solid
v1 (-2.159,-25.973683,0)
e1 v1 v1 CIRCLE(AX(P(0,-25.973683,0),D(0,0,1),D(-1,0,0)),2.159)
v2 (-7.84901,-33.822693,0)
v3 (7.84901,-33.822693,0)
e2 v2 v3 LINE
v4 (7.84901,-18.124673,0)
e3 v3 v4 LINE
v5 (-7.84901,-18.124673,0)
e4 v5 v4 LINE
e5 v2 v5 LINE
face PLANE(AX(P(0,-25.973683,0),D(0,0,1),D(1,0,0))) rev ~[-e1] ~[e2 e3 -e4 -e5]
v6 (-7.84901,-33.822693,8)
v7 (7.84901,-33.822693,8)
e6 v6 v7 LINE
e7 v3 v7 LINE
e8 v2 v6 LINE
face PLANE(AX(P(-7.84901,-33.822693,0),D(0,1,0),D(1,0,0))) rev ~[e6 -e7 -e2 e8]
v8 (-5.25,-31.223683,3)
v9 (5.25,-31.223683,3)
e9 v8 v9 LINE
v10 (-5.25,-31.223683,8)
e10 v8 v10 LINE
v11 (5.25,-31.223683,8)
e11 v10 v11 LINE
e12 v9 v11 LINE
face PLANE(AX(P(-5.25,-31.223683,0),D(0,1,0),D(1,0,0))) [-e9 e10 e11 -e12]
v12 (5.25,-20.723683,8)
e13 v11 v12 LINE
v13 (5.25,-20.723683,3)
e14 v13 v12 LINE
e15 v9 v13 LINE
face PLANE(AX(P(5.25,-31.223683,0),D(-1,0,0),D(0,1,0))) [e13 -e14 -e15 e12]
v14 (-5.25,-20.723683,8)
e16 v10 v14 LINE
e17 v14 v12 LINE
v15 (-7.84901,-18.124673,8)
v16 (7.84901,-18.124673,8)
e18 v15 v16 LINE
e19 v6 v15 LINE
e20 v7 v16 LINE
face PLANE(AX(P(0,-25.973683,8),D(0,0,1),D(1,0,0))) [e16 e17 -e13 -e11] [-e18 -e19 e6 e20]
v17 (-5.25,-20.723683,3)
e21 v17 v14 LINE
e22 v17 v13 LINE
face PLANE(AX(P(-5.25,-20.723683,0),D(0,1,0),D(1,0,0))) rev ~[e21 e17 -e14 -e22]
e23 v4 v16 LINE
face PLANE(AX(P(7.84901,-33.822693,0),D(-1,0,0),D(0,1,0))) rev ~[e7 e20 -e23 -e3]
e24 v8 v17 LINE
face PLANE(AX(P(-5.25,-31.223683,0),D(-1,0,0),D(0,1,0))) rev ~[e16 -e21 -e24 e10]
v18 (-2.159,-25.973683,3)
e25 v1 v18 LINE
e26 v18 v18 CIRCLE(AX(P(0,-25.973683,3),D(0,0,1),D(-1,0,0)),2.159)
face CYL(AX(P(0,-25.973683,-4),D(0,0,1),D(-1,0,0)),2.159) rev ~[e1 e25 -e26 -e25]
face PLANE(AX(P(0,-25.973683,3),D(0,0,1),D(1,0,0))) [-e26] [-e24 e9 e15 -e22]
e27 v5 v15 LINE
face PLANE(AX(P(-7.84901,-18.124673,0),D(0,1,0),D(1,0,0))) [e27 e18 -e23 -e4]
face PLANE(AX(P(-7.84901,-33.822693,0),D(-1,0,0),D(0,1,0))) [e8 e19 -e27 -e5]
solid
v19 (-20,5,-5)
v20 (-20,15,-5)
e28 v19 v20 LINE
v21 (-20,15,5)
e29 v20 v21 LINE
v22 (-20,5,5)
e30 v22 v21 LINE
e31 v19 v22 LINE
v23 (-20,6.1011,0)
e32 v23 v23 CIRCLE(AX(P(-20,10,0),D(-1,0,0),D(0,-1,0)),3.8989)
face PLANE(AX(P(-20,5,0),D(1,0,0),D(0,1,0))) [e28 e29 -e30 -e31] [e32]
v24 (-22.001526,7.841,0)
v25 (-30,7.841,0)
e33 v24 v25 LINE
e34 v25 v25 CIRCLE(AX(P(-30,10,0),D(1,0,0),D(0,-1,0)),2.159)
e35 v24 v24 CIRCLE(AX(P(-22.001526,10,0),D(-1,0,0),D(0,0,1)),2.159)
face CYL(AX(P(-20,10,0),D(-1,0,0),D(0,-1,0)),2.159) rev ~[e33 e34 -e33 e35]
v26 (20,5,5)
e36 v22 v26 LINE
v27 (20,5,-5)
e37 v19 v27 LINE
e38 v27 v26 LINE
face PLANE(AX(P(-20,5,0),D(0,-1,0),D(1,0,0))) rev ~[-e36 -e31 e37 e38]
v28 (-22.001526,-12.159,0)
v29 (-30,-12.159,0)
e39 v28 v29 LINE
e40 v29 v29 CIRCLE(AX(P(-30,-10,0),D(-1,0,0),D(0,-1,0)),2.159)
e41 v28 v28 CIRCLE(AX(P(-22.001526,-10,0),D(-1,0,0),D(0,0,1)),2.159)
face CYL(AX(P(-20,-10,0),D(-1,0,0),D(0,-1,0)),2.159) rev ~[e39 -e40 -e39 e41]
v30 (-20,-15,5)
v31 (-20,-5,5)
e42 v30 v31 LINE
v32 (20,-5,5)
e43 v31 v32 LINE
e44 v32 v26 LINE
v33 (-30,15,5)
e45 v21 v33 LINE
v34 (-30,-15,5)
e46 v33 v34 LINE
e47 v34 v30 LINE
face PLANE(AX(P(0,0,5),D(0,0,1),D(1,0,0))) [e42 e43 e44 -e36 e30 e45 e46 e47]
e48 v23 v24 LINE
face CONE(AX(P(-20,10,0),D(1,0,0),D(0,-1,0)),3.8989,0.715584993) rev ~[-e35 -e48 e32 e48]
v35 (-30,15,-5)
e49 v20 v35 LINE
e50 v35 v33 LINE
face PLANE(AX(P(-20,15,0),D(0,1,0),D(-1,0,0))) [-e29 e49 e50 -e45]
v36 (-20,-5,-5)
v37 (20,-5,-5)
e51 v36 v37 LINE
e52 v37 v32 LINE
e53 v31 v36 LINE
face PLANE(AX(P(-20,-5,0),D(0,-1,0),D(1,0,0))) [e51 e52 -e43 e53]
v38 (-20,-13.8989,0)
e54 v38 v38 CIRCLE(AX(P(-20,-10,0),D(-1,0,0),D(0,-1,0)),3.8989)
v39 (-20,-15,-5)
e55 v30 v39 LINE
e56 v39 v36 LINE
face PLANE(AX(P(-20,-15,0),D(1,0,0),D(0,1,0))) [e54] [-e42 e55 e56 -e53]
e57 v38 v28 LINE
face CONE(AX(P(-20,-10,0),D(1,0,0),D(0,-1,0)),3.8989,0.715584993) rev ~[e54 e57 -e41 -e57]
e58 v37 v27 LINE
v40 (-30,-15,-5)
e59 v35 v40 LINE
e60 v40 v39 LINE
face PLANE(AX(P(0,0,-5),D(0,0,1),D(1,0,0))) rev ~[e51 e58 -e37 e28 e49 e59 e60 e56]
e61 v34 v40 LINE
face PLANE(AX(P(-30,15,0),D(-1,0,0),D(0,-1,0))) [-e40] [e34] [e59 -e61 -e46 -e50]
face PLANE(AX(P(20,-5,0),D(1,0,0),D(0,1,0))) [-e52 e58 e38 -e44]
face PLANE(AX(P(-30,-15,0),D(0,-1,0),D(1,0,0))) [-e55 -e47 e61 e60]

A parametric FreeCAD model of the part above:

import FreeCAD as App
import Part
import Sketcher
from FreeCAD import Vector

doc = App.newDocument("Part")
params = doc.addObject("Spreadsheet::Sheet", "Params")
for row, (alias, value) in enumerate([
    ("sketch1_width", "40 mm"),
    ("sketch1_width2", "10 mm"),
    ("pad1_length", "10 mm"),
    ("hole_diameter", "4.318 mm"),
    ("hole_depth", "10 mm"),
    ("hole_csink_diameter", "7.7978 mm"),
    ("hole2_diameter", "4.318 mm"),
    ("hole2_depth", "10 mm"),
    ("hole2_csink_diameter", "7.7978 mm"),
    ("sketch4_width", "10.5 mm"),
    ("pad2_length", "3 mm"),
    ("hole3_diameter", "4.318 mm"),
    ("hole3_depth", "4 mm"),
    ("sketch6_width", "10.5 mm"),
    ("pad3_length", "8 mm"),
], start=1):
    params.set(f"A{row}", alias)
    params.set(f"B{row}", "=" + value)
    params.setAlias(f"B{row}", alias)

body = doc.addObject("PartDesign::Body", "Body")

# Sketch on XY plane
sketch1 = body.newObject("Sketcher::SketchObject", "Sketch")
sketch1.AttachmentSupport = (doc.getObject("XY_Plane"), [""])
sketch1.MapMode = "FlatFace"
sketch1.addGeometry([
    Part.LineSegment(Vector(-20, -5, 0), Vector(20, -5, 0)),  # 0
    Part.LineSegment(Vector(20, -5, 0), Vector(20, 5, 0)),  # 1
    Part.LineSegment(Vector(20, 5, 0), Vector(-20, 5, 0)),  # 2
    Part.LineSegment(Vector(-20, 5, 0), Vector(-20, 15, 0)),  # 3
    Part.LineSegment(Vector(-20, 15, 0), Vector(-30, 15, 0)),  # 4
    Part.LineSegment(Vector(-30, 15, 0), Vector(-30, -15, 0)),  # 5
    Part.LineSegment(Vector(-30, -15, 0), Vector(-20, -15, 0)),  # 6
    Part.LineSegment(Vector(-20, -15, 0), Vector(-20, -5, 0)),  # 7
], False)
sketch1.addConstraint([
    Sketcher.Constraint("Coincident", 0, 2, 1, 1),
    Sketcher.Constraint("Coincident", 1, 2, 2, 1),
    Sketcher.Constraint("Coincident", 2, 2, 3, 1),
    Sketcher.Constraint("Coincident", 3, 2, 4, 1),
    Sketcher.Constraint("Coincident", 4, 2, 5, 1),
    Sketcher.Constraint("Coincident", 5, 2, 6, 1),
    Sketcher.Constraint("Coincident", 6, 2, 7, 1),
    Sketcher.Constraint("Coincident", 7, 2, 0, 1),
    Sketcher.Constraint("Horizontal", 0),
    Sketcher.Constraint("Vertical", 1),
    Sketcher.Constraint("Horizontal", 2),
    Sketcher.Constraint("Vertical", 3),
    Sketcher.Constraint("Horizontal", 4),
    Sketcher.Constraint("Vertical", 5),
    Sketcher.Constraint("Horizontal", 6),
    Sketcher.Constraint("Vertical", 7),
    Sketcher.Constraint("Symmetric", 0, 2, 2, 2, -1, 1),
    Sketcher.Constraint("Symmetric", 3, 2, 6, 2, -1),
    Sketcher.Constraint("Equal", 6, 1),
    Sketcher.Constraint("Equal", 1, 3),
    Sketcher.Constraint("DistanceX", 0, 1, 0, 2, 40.0),
    Sketcher.Constraint("DistanceX", 4, 2, 4, 1, 10.0),
])
sketch1.setExpression("Constraints[20]", "Params.sketch1_width")
sketch1.setExpression("Constraints[21]", "Params.sketch1_width2")
pad1 = body.newObject("PartDesign::Pad", "Pad")
pad1.Profile = sketch1
pad1.setExpression("Length", "Params.pad1_length")
pad1.Midplane = True

# Sketch on YZ plane
sketch2 = body.newObject("Sketcher::SketchObject", "Sketch001")
sketch2.AttachmentSupport = (doc.getObject("YZ_Plane"), [""])
sketch2.MapMode = "FlatFace"
sketch2.AttachmentOffset = App.Placement(Vector(0, 0, -20), App.Rotation())
sketch2.addGeometry(Part.Circle(Vector(10, 0, 0), Vector(0, 0, 1), 2.2), False)
sketch2.addConstraint([
    Sketcher.Constraint("PointOnObject", 0, 3, -1),
    Sketcher.Constraint("Diameter", 0, 4.318),
    Sketcher.Constraint("DistanceX", -1, 1, 0, 3, 10.0),
])
doc.recompute()
hole = body.newObject("PartDesign::Hole", "Hole")
hole.Profile = sketch2
hole.ThreadType = "None"
hole.setExpression("Diameter", "Params.hole_diameter")
hole.DepthType = "Dimension"
hole.setExpression("Depth", "Params.hole_depth")
hole.DrillPoint = "Angled"
hole.DrillPointAngle = 118
hole.HoleCutType = "Countersink"
hole.setExpression("HoleCutDiameter", "Params.hole_csink_diameter")
hole.HoleCutCountersinkAngle = 82

# Sketch on YZ plane
sketch3 = body.newObject("Sketcher::SketchObject", "Sketch002")
sketch3.AttachmentSupport = (doc.getObject("YZ_Plane"), [""])
sketch3.MapMode = "FlatFace"
sketch3.AttachmentOffset = App.Placement(Vector(0, 0, -20), App.Rotation())
sketch3.addGeometry(Part.Circle(Vector(-10, 0, 0), Vector(0, 0, 1), 2.2), False)
sketch3.addConstraint([
    Sketcher.Constraint("PointOnObject", 0, 3, -1),
    Sketcher.Constraint("Diameter", 0, 4.318),
    Sketcher.Constraint("DistanceX", 0, 3, -1, 1, 10.0),
])
doc.recompute()
hole2 = body.newObject("PartDesign::Hole", "Hole001")
hole2.Profile = sketch3
hole2.ThreadType = "None"
hole2.setExpression("Diameter", "Params.hole2_diameter")
hole2.DepthType = "Dimension"
hole2.setExpression("Depth", "Params.hole2_depth")
hole2.DrillPoint = "Angled"
hole2.DrillPointAngle = 118
hole2.HoleCutType = "Countersink"
hole2.setExpression("HoleCutDiameter", "Params.hole2_csink_diameter")
hole2.HoleCutCountersinkAngle = 82
body2 = doc.addObject("PartDesign::Body", "Body001")

# Sketch on XY plane
sketch4 = body2.newObject("Sketcher::SketchObject", "Sketch003")
sketch4.AttachmentSupport = (doc.getObject("XY_Plane001"), [""])
sketch4.MapMode = "FlatFace"
sketch4.addGeometry([
    Part.LineSegment(Vector(-5, -21, 0), Vector(-5, -31, 0)),
    Part.LineSegment(Vector(-5, -31, 0), Vector(5, -31, 0)),
    Part.LineSegment(Vector(5, -31, 0), Vector(5, -21, 0)),
    Part.LineSegment(Vector(5, -21, 0), Vector(-5, -21, 0)),
], False)
sketch4.addConstraint([
    Sketcher.Constraint("Coincident", 0, 2, 1, 1),
    Sketcher.Constraint("Coincident", 1, 2, 2, 1),
    Sketcher.Constraint("Coincident", 2, 2, 3, 1),
    Sketcher.Constraint("Coincident", 3, 2, 0, 1),
    Sketcher.Constraint("Vertical", 0),
    Sketcher.Constraint("Horizontal", 1),
    Sketcher.Constraint("Vertical", 2),
    Sketcher.Constraint("Horizontal", 3),
    Sketcher.Constraint("Equal", 3, 0),
    Sketcher.Constraint("DistanceX", 1, 1, 1, 2, 10.5),
    Sketcher.Constraint("DistanceX", 0, 2, -1, 1, 5.25),
    Sketcher.Constraint("DistanceY", 0, 2, -1, 1, 31.223683),
])
sketch4.setExpression("Constraints[9]", "Params.sketch4_width")
pad2 = body2.newObject("PartDesign::Pad", "Pad001")
pad2.Profile = sketch4
pad2.setExpression("Length", "Params.pad2_length")

# Sketch on XY plane
sketch5 = body2.newObject("Sketcher::SketchObject", "Sketch004")
sketch5.AttachmentSupport = (doc.getObject("XY_Plane001"), [""])
sketch5.MapMode = "FlatFace"
sketch5.addGeometry(Part.Circle(Vector(0, -26, 0), Vector(0, 0, 1), 2.2), False)
sketch5.addConstraint([
    Sketcher.Constraint("PointOnObject", 0, 3, -2),
    Sketcher.Constraint("Diameter", 0, 4.318),
    Sketcher.Constraint("DistanceY", 0, 3, -1, 1, 25.973683),
])
doc.recompute()
hole3 = body2.newObject("PartDesign::Hole", "Hole002")
hole3.Profile = sketch5
hole3.ThreadType = "None"
hole3.setExpression("Diameter", "Params.hole3_diameter")
hole3.DepthType = "Dimension"
hole3.setExpression("Depth", "Params.hole3_depth")
hole3.DrillPoint = "Angled"
hole3.DrillPointAngle = 118
hole3.Reversed = True

# Sketch on XY plane
sketch6 = body2.newObject("Sketcher::SketchObject", "Sketch005")
sketch6.AttachmentSupport = (doc.getObject("XY_Plane001"), [""])
sketch6.MapMode = "FlatFace"
sketch6.addGeometry([
    Part.LineSegment(Vector(-8, -18, 0), Vector(-8, -34, 0)),  # 0
    Part.LineSegment(Vector(-8, -34, 0), Vector(8, -34, 0)),  # 1
    Part.LineSegment(Vector(8, -34, 0), Vector(8, -18, 0)),  # 2
    Part.LineSegment(Vector(8, -18, 0), Vector(-8, -18, 0)),  # 3
    Part.LineSegment(Vector(5, -31, 0), Vector(-5, -31, 0)),  # 4
    Part.LineSegment(Vector(-5, -31, 0), Vector(-5, -21, 0)),  # 5
    Part.LineSegment(Vector(-5, -21, 0), Vector(5, -21, 0)),  # 6
    Part.LineSegment(Vector(5, -21, 0), Vector(5, -31, 0)),  # 7
], False)
sketch6.addConstraint([
    Sketcher.Constraint("Coincident", 0, 2, 1, 1),
    Sketcher.Constraint("Coincident", 1, 2, 2, 1),
    Sketcher.Constraint("Coincident", 2, 2, 3, 1),
    Sketcher.Constraint("Coincident", 3, 2, 0, 1),
    Sketcher.Constraint("Coincident", 4, 2, 5, 1),
    Sketcher.Constraint("Coincident", 5, 2, 6, 1),
    Sketcher.Constraint("Coincident", 6, 2, 7, 1),
    Sketcher.Constraint("Coincident", 7, 2, 4, 1),
    Sketcher.Constraint("Vertical", 0),
    Sketcher.Constraint("Horizontal", 1),
    Sketcher.Constraint("Vertical", 2),
    Sketcher.Constraint("Horizontal", 3),
    Sketcher.Constraint("Horizontal", 4),
    Sketcher.Constraint("Vertical", 5),
    Sketcher.Constraint("Horizontal", 6),
    Sketcher.Constraint("Vertical", 7),
    Sketcher.Constraint("Equal", 3, 0),
    Sketcher.Constraint("Equal", 6, 5),
    Sketcher.Constraint("DistanceX", 4, 2, 4, 1, 10.5),
    Sketcher.Constraint("DistanceX", 4, 2, -1, 1, 5.25),
    Sketcher.Constraint("DistanceX", 1, 1, 1, 2, 15.69802),
    Sketcher.Constraint("DistanceX", 0, 2, -1, 1, 7.84901),
    Sketcher.Constraint("DistanceY", 0, 2, 4, 2, 2.59901),
    Sketcher.Constraint("DistanceY", 0, 2, -1, 1, 33.822693),
])
sketch6.setExpression("Constraints[18]", "Params.sketch6_width")
pad3 = body2.newObject("PartDesign::Pad", "Pad002")
pad3.Profile = sketch6
pad3.setExpression("Length", "Params.pad3_length")

doc.recompute()
